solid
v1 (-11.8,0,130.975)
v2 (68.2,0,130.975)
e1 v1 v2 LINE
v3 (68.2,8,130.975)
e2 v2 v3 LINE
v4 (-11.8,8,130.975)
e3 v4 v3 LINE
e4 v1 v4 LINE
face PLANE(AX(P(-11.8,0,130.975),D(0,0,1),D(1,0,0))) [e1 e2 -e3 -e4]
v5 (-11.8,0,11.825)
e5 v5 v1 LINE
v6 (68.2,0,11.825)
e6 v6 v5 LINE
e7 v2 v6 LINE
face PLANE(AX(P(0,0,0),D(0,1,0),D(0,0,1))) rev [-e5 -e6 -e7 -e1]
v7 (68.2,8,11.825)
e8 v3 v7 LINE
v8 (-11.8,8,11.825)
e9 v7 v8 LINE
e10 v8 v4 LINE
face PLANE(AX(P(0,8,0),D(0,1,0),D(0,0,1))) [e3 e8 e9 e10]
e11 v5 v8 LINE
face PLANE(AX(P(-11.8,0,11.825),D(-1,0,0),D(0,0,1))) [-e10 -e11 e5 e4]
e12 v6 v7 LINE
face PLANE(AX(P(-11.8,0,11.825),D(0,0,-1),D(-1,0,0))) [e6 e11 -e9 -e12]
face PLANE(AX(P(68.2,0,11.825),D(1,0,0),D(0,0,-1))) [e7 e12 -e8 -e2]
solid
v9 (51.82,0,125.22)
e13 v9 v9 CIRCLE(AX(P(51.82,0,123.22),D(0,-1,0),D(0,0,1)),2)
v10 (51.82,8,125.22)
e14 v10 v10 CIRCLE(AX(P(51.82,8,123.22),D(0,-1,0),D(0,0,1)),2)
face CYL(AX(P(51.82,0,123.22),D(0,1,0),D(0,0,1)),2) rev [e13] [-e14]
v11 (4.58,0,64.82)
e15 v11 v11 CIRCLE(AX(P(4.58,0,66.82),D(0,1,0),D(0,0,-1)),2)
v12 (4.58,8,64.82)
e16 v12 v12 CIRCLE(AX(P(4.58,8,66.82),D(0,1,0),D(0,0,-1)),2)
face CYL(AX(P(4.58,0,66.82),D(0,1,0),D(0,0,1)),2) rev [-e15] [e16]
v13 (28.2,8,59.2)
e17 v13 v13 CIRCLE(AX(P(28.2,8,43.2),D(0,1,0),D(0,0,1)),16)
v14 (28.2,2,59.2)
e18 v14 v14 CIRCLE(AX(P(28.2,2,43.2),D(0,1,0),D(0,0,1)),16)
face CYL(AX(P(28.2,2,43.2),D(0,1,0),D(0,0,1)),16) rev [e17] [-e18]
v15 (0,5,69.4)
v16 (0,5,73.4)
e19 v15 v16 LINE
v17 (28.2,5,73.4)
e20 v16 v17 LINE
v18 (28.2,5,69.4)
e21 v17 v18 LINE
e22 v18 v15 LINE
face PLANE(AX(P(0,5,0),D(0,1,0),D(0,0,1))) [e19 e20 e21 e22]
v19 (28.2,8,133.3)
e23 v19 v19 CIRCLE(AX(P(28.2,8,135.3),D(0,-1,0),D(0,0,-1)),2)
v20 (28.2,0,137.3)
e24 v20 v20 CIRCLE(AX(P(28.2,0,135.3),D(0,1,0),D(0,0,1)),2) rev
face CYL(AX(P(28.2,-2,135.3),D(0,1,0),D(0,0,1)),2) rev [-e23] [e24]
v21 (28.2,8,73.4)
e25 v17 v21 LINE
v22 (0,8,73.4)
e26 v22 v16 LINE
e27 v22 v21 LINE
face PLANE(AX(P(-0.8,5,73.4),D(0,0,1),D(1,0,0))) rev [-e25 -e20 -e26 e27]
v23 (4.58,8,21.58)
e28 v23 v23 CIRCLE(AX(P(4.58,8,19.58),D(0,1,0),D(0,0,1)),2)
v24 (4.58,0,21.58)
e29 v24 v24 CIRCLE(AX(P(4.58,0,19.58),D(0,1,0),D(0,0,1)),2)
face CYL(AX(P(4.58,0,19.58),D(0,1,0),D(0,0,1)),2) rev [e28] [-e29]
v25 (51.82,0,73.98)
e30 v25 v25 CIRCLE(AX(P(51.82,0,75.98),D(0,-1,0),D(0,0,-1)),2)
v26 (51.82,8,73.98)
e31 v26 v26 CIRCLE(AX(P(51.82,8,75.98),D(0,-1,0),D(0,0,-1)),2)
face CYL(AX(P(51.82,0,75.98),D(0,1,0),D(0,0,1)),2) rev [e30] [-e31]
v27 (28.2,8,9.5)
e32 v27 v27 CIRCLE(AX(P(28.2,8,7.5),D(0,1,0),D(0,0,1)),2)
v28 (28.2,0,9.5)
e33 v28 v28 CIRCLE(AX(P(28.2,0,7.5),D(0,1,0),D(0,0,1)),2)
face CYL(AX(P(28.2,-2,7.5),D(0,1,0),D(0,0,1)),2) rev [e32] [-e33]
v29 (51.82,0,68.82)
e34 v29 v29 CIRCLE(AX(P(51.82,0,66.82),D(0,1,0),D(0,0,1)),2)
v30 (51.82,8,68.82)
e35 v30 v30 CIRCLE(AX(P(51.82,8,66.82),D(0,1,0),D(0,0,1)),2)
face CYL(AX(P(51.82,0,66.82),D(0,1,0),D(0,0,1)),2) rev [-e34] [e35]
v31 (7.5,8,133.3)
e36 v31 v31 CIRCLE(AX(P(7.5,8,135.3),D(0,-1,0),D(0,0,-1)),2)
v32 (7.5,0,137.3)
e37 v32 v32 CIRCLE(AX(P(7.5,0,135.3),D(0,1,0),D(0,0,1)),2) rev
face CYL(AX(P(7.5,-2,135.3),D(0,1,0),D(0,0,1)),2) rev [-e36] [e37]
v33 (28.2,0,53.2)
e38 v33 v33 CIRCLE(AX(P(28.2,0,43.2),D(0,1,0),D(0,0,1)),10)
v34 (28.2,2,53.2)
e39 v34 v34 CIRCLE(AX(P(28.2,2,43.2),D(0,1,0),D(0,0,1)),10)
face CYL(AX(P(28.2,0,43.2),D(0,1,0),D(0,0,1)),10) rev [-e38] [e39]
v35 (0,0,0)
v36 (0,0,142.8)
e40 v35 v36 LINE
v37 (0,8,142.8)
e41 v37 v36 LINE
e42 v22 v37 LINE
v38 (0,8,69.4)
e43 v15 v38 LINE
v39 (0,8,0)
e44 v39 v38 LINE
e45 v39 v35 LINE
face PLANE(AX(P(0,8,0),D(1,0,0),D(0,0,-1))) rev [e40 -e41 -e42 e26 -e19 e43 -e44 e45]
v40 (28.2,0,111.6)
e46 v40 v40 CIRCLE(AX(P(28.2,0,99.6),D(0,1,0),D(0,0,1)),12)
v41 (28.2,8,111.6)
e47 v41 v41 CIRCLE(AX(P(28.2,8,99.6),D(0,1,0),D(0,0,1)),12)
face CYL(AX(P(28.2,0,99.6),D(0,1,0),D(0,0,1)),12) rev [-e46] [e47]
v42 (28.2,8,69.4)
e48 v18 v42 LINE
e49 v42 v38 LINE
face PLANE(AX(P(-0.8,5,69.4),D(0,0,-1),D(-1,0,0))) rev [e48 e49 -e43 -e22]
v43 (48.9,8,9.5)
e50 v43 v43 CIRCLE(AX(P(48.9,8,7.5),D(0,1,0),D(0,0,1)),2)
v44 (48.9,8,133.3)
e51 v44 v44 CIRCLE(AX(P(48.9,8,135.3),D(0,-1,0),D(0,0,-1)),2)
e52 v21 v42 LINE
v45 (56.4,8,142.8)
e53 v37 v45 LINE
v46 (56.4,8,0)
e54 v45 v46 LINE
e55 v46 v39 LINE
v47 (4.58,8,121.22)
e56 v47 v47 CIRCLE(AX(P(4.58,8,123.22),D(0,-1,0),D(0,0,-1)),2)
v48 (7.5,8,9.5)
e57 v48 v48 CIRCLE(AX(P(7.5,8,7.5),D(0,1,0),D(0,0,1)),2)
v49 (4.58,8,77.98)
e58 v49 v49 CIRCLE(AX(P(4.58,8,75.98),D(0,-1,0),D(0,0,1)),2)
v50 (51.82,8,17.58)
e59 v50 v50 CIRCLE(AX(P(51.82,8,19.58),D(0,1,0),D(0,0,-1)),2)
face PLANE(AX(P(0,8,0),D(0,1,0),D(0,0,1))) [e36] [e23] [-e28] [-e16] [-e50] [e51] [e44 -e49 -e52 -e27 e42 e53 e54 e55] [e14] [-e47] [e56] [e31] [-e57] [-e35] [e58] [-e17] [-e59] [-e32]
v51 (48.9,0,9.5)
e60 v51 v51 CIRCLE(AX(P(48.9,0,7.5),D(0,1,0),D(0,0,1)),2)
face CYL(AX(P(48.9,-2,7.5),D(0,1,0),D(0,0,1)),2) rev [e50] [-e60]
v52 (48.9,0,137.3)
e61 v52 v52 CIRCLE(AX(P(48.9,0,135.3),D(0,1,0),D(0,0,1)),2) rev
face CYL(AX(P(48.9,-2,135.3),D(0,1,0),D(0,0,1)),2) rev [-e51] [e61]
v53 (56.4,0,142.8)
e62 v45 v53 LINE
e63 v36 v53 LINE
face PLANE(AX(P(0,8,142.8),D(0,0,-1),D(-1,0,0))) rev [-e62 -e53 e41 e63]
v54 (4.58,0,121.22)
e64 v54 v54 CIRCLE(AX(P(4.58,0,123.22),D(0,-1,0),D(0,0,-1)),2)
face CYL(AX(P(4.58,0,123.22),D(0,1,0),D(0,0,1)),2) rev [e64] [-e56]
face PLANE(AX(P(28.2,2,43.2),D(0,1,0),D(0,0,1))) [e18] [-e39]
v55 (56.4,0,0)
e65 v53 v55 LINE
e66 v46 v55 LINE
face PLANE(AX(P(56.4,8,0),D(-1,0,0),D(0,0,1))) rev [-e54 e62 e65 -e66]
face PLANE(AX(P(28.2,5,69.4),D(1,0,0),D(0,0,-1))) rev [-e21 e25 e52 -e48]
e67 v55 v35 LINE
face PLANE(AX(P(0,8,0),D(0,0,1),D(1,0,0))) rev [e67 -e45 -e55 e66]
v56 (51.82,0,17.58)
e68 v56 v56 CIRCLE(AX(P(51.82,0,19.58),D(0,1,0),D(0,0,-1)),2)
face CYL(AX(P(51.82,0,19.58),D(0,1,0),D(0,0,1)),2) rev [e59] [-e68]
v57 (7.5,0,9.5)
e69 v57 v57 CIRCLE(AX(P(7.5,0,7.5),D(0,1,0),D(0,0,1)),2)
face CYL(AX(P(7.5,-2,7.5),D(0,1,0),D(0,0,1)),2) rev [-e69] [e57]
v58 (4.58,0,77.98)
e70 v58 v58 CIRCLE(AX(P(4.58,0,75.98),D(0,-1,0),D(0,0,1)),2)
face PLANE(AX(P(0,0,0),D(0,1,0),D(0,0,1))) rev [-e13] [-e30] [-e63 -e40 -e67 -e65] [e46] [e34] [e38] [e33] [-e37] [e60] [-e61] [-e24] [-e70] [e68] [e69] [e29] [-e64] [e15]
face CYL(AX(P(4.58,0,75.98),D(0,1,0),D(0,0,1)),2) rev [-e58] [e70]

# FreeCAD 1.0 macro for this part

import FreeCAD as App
import Part
import Sketcher


def add_polygon(sketch, points):
    """Adds a closed chain of lines whose ends are joined by coincident constraints."""
    first, n = sketch.GeometryCount, len(points)
    for a, b in zip(points, points[1:] + points[:1]):
        sketch.addGeometry(Part.LineSegment(App.Vector(*a, 0), App.Vector(*b, 0)), False)
    for i in range(n):
        sketch.addConstraint(Sketcher.Constraint("Coincident", first + i, 2, first + (i + 1) % n, 1))

doc = App.newDocument("Part")
body = doc.addObject("PartDesign::Body", "Body")

# Sketch on XZ plane
sketch1 = doc.addObject("Sketcher::SketchObject", "Sketch")
body.addObject(sketch1)
sketch1.AttachmentSupport = (doc.XZ_Plane, [""])
sketch1.MapMode = "FlatFace"
add_polygon(sketch1, [(0, 0), (0, 143), (56, 143), (56, 0)])  # lines 0-3
sketch1.addConstraint(Sketcher.Constraint("Vertical", 0))
sketch1.addConstraint(Sketcher.Constraint("Horizontal", 1))
sketch1.addConstraint(Sketcher.Constraint("Vertical", 2))
sketch1.addConstraint(Sketcher.Constraint("Horizontal", 3))
sketch1.addConstraint(Sketcher.Constraint("Coincident", 3, 2, -1, 1))
sketch1.addConstraint(Sketcher.Constraint("DistanceX", 1, 1, 1, 2, 56.4))
sketch1.addConstraint(Sketcher.Constraint("DistanceY", 0, 1, 0, 2, 142.8))
pad1 = doc.addObject("PartDesign::Pad", "Pad")
body.addObject(pad1)
pad1.Profile = sketch1
pad1.Length = 8
pad1.Reversed = True

# Sketch on XZ plane
sketch2 = doc.addObject("Sketcher::SketchObject", "Sketch001")
body.addObject(sketch2)
sketch2.AttachmentSupport = (doc.XZ_Plane, [""])
sketch2.MapMode = "FlatFace"
sketch2.AttachmentOffset = App.Placement(App.Vector(0, 0, -8), App.Rotation())
sketch2.addGeometry(Part.Circle(App.Vector(28, 43, 0), App.Vector(0, 0, 1), 16), False)
sketch2.addConstraint(Sketcher.Constraint("Diameter", 0, 32.0))
sketch2.addConstraint(Sketcher.Constraint("DistanceX", -1, 1, 0, 3, 28.2))
sketch2.addConstraint(Sketcher.Constraint("DistanceY", -1, 1, 0, 3, 43.2))
pocket1 = doc.addObject("PartDesign::Pocket", "Pocket")
body.addObject(pocket1)
pocket1.Profile = sketch2
pocket1.Length = 6
pocket1.Reversed = True

# Sketch on XZ plane
sketch3 = doc.addObject("Sketcher::SketchObject", "Sketch002")
body.addObject(sketch3)
sketch3.AttachmentSupport = (doc.XZ_Plane, [""])
sketch3.MapMode = "FlatFace"
sketch3.AttachmentOffset = App.Placement(App.Vector(0, 0, -2), App.Rotation())
sketch3.addGeometry(Part.Circle(App.Vector(28, 43, 0), App.Vector(0, 0, 1), 10), False)
sketch3.addConstraint(Sketcher.Constraint("Diameter", 0, 20.0))
sketch3.addConstraint(Sketcher.Constraint("DistanceX", -1, 1, 0, 3, 28.2))
sketch3.addConstraint(Sketcher.Constraint("DistanceY", -1, 1, 0, 3, 43.2))
pocket2 = doc.addObject("PartDesign::Pocket", "Pocket001")
body.addObject(pocket2)
pocket2.Profile = sketch3
pocket2.Type = "ThroughAll"
pocket2.Reversed = True

# Sketch on XZ plane
sketch4 = doc.addObject("Sketcher::SketchObject", "Sketch003")
body.addObject(sketch4)
sketch4.AttachmentSupport = (doc.XZ_Plane, [""])
sketch4.MapMode = "FlatFace"
sketch4.AttachmentOffset = App.Placement(App.Vector(0, 0, -8), App.Rotation())
sketch4.addGeometry(Part.Circle(App.Vector(4.6, 19.6, 0), App.Vector(0, 0, 1), 2), False)
sketch4.addGeometry(Part.Circle(App.Vector(51.8, 19.6, 0), App.Vector(0, 0, 1), 2), False)
sketch4.addGeometry(Part.Circle(App.Vector(51.8, 66.8, 0), App.Vector(0, 0, 1), 2), False)
sketch4.addGeometry(Part.Circle(App.Vector(4.6, 66.8, 0), App.Vector(0, 0, 1), 2), False)
sketch4.addConstraint(Sketcher.Constraint("Equal", 0, 1))
sketch4.addConstraint(Sketcher.Constraint("Equal", 1, 2))
sketch4.addConstraint(Sketcher.Constraint("Equal", 2, 3))
sketch4.addConstraint(Sketcher.Constraint("Horizontal", 0, 3, 1, 3))
sketch4.addConstraint(Sketcher.Constraint("Horizontal", 2, 3, 3, 3))
sketch4.addConstraint(Sketcher.Constraint("Vertical", 1, 3, 2, 3))
sketch4.addConstraint(Sketcher.Constraint("Vertical", 0, 3, 3, 3))
sketch4.addConstraint(Sketcher.Constraint("Diameter", 0, 4.0))
sketch4.addConstraint(Sketcher.Constraint("DistanceX", -1, 1, 0, 3, 4.58))
sketch4.addConstraint(Sketcher.Constraint("DistanceY", -1, 1, 0, 3, 19.58))
sketch4.addConstraint(Sketcher.Constraint("DistanceX", -1, 1, 1, 3, 51.82))
sketch4.addConstraint(Sketcher.Constraint("DistanceY", -1, 1, 2, 3, 66.82))
pocket3 = doc.addObject("PartDesign::Pocket", "Pocket002")
body.addObject(pocket3)
pocket3.Profile = sketch4
pocket3.Type = "ThroughAll"
pocket3.Reversed = True

# Sketch on XZ plane
sketch5 = doc.addObject("Sketcher::SketchObject", "Sketch004")
body.addObject(sketch5)
sketch5.AttachmentSupport = (doc.XZ_Plane, [""])
sketch5.MapMode = "FlatFace"
sketch5.AttachmentOffset = App.Placement(App.Vector(0, 0, -8), App.Rotation())
sketch5.addGeometry(Part.Circle(App.Vector(28, 100, 0), App.Vector(0, 0, 1), 12), False)
sketch5.addConstraint(Sketcher.Constraint("Diameter", 0, 24.0))
sketch5.addConstraint(Sketcher.Constraint("DistanceX", -1, 1, 0, 3, 28.2))
sketch5.addConstraint(Sketcher.Constraint("DistanceY", -1, 1, 0, 3, 99.6))
pocket4 = doc.addObject("PartDesign::Pocket", "Pocket003")
body.addObject(pocket4)
pocket4.Profile = sketch5
pocket4.Type = "ThroughAll"
pocket4.Reversed = True
doc.recompute()

datumplane = doc.addObject("PartDesign::Plane", "DatumPlane")
body.addObject(datumplane)
datumplane.AttachmentSupport = (doc.XY_Plane, [""])
datumplane.MapMode = "FlatFace"
datumplane.AttachmentOffset = App.Placement(App.Vector(0, 0, 71.4), App.Rotation())
mirrored = doc.addObject("PartDesign::Mirrored", "Mirrored")
body.addObject(mirrored)
mirrored.Originals = [pocket3]
mirrored.MirrorPlane = (datumplane, [""])
body.Tip = mirrored

# Sketch on XZ plane
sketch6 = doc.addObject("Sketcher::SketchObject", "Sketch005")
body.addObject(sketch6)
sketch6.AttachmentSupport = (doc.XZ_Plane, [""])
sketch6.MapMode = "FlatFace"
sketch6.AttachmentOffset = App.Placement(App.Vector(0, 0, -8), App.Rotation())
sketch6.addGeometry(Part.Circle(App.Vector(7.5, 7.5, 0), App.Vector(0, 0, 1), 2), False)
sketch6.addGeometry(Part.Circle(App.Vector(28.2, 7.5, 0), App.Vector(0, 0, 1), 2), False)
sketch6.addGeometry(Part.Circle(App.Vector(48.9, 7.5, 0), App.Vector(0, 0, 1), 2), False)
sketch6.addConstraint(Sketcher.Constraint("Equal", 0, 1))
sketch6.addConstraint(Sketcher.Constraint("Equal", 1, 2))
sketch6.addConstraint(Sketcher.Constraint("Horizontal", 0, 3, 1, 3))
sketch6.addConstraint(Sketcher.Constraint("Horizontal", 1, 3, 2, 3))
sketch6.addConstraint(Sketcher.Constraint("Diameter", 0, 4.0))
sketch6.addConstraint(Sketcher.Constraint("DistanceX", -1, 1, 0, 3, 7.5))
sketch6.addConstraint(Sketcher.Constraint("DistanceY", -1, 1, 0, 3, 7.5))
sketch6.addConstraint(Sketcher.Constraint("DistanceX", -1, 1, 1, 3, 28.2))
sketch6.addConstraint(Sketcher.Constraint("DistanceX", -1, 1, 2, 3, 48.9))
pocket5 = doc.addObject("PartDesign::Pocket", "Pocket004")
body.addObject(pocket5)
pocket5.Profile = sketch6
pocket5.Length = 10
pocket5.Reversed = True
doc.recompute()

datumplane2 = doc.addObject("PartDesign::Plane", "DatumPlane001")
body.addObject(datumplane2)
datumplane2.AttachmentSupport = (doc.XY_Plane, [""])
datumplane2.MapMode = "FlatFace"
datumplane2.AttachmentOffset = App.Placement(App.Vector(0, 0, 71.4), App.Rotation())
mirrored2 = doc.addObject("PartDesign::Mirrored", "Mirrored001")
body.addObject(mirrored2)
mirrored2.Originals = [pocket5]
mirrored2.MirrorPlane = (datumplane2, [""])
body.Tip = mirrored2

# Sketch on XZ plane
sketch7 = doc.addObject("Sketcher::SketchObject", "Sketch006")
body.addObject(sketch7)
sketch7.AttachmentSupport = (doc.XZ_Plane, [""])
sketch7.MapMode = "FlatFace"
sketch7.AttachmentOffset = App.Placement(App.Vector(0, 0, -8), App.Rotation())
add_polygon(sketch7, [(-0.8, 69.4), (-0.8, 73.4), (28.2, 73.4), (28.2, 69.4)])  # lines 0-3
sketch7.addConstraint(Sketcher.Constraint("Vertical", 0))
sketch7.addConstraint(Sketcher.Constraint("Horizontal", 1))
sketch7.addConstraint(Sketcher.Constraint("Vertical", 2))
sketch7.addConstraint(Sketcher.Constraint("Horizontal", 3))
sketch7.addConstraint(Sketcher.Constraint("DistanceX", 1, 1, 1, 2, 29.0))
sketch7.addConstraint(Sketcher.Constraint("DistanceY", 0, 1, 0, 2, 4.0))
sketch7.addConstraint(Sketcher.Constraint("DistanceX", 0, 2, -1, 1, 0.8))
sketch7.addConstraint(Sketcher.Constraint("DistanceY", -1, 1, 0, 2, 73.4))
pocket6 = doc.addObject("PartDesign::Pocket", "Pocket005")
body.addObject(pocket6)
pocket6.Profile = sketch7
pocket6.Length = 3
pocket6.Reversed = True
body2 = doc.addObject("PartDesign::Body", "Body001")

# Sketch on XZ plane
sketch8 = doc.addObject("Sketcher::SketchObject", "Sketch007")
body2.addObject(sketch8)
sketch8.AttachmentSupport = (doc.getObject("XZ_Plane001"), [""])
sketch8.MapMode = "FlatFace"
sketch8.AttachmentOffset = App.Placement(App.Vector(0, 0, -8), App.Rotation())
add_polygon(sketch8, [(-12, 12), (-12, 131), (68, 131), (68, 12)])  # lines 0-3
sketch8.addConstraint(Sketcher.Constraint("Vertical", 0))
sketch8.addConstraint(Sketcher.Constraint("Horizontal", 1))
sketch8.addConstraint(Sketcher.Constraint("Vertical", 2))
sketch8.addConstraint(Sketcher.Constraint("Horizontal", 3))
sketch8.addConstraint(Sketcher.Constraint("DistanceX", 1, 1, 1, 2, 80.0))
sketch8.addConstraint(Sketcher.Constraint("DistanceY", 0, 1, 0, 2, 119.15))
sketch8.addConstraint(Sketcher.Constraint("DistanceX", 0, 2, -1, 1, 11.8))
sketch8.addConstraint(Sketcher.Constraint("DistanceY", -1, 1, 0, 2, 130.975))
pad2 = doc.addObject("PartDesign::Pad", "Pad001")
body2.addObject(pad2)
pad2.Profile = sketch8
pad2.Length = 8

doc.recompute()
